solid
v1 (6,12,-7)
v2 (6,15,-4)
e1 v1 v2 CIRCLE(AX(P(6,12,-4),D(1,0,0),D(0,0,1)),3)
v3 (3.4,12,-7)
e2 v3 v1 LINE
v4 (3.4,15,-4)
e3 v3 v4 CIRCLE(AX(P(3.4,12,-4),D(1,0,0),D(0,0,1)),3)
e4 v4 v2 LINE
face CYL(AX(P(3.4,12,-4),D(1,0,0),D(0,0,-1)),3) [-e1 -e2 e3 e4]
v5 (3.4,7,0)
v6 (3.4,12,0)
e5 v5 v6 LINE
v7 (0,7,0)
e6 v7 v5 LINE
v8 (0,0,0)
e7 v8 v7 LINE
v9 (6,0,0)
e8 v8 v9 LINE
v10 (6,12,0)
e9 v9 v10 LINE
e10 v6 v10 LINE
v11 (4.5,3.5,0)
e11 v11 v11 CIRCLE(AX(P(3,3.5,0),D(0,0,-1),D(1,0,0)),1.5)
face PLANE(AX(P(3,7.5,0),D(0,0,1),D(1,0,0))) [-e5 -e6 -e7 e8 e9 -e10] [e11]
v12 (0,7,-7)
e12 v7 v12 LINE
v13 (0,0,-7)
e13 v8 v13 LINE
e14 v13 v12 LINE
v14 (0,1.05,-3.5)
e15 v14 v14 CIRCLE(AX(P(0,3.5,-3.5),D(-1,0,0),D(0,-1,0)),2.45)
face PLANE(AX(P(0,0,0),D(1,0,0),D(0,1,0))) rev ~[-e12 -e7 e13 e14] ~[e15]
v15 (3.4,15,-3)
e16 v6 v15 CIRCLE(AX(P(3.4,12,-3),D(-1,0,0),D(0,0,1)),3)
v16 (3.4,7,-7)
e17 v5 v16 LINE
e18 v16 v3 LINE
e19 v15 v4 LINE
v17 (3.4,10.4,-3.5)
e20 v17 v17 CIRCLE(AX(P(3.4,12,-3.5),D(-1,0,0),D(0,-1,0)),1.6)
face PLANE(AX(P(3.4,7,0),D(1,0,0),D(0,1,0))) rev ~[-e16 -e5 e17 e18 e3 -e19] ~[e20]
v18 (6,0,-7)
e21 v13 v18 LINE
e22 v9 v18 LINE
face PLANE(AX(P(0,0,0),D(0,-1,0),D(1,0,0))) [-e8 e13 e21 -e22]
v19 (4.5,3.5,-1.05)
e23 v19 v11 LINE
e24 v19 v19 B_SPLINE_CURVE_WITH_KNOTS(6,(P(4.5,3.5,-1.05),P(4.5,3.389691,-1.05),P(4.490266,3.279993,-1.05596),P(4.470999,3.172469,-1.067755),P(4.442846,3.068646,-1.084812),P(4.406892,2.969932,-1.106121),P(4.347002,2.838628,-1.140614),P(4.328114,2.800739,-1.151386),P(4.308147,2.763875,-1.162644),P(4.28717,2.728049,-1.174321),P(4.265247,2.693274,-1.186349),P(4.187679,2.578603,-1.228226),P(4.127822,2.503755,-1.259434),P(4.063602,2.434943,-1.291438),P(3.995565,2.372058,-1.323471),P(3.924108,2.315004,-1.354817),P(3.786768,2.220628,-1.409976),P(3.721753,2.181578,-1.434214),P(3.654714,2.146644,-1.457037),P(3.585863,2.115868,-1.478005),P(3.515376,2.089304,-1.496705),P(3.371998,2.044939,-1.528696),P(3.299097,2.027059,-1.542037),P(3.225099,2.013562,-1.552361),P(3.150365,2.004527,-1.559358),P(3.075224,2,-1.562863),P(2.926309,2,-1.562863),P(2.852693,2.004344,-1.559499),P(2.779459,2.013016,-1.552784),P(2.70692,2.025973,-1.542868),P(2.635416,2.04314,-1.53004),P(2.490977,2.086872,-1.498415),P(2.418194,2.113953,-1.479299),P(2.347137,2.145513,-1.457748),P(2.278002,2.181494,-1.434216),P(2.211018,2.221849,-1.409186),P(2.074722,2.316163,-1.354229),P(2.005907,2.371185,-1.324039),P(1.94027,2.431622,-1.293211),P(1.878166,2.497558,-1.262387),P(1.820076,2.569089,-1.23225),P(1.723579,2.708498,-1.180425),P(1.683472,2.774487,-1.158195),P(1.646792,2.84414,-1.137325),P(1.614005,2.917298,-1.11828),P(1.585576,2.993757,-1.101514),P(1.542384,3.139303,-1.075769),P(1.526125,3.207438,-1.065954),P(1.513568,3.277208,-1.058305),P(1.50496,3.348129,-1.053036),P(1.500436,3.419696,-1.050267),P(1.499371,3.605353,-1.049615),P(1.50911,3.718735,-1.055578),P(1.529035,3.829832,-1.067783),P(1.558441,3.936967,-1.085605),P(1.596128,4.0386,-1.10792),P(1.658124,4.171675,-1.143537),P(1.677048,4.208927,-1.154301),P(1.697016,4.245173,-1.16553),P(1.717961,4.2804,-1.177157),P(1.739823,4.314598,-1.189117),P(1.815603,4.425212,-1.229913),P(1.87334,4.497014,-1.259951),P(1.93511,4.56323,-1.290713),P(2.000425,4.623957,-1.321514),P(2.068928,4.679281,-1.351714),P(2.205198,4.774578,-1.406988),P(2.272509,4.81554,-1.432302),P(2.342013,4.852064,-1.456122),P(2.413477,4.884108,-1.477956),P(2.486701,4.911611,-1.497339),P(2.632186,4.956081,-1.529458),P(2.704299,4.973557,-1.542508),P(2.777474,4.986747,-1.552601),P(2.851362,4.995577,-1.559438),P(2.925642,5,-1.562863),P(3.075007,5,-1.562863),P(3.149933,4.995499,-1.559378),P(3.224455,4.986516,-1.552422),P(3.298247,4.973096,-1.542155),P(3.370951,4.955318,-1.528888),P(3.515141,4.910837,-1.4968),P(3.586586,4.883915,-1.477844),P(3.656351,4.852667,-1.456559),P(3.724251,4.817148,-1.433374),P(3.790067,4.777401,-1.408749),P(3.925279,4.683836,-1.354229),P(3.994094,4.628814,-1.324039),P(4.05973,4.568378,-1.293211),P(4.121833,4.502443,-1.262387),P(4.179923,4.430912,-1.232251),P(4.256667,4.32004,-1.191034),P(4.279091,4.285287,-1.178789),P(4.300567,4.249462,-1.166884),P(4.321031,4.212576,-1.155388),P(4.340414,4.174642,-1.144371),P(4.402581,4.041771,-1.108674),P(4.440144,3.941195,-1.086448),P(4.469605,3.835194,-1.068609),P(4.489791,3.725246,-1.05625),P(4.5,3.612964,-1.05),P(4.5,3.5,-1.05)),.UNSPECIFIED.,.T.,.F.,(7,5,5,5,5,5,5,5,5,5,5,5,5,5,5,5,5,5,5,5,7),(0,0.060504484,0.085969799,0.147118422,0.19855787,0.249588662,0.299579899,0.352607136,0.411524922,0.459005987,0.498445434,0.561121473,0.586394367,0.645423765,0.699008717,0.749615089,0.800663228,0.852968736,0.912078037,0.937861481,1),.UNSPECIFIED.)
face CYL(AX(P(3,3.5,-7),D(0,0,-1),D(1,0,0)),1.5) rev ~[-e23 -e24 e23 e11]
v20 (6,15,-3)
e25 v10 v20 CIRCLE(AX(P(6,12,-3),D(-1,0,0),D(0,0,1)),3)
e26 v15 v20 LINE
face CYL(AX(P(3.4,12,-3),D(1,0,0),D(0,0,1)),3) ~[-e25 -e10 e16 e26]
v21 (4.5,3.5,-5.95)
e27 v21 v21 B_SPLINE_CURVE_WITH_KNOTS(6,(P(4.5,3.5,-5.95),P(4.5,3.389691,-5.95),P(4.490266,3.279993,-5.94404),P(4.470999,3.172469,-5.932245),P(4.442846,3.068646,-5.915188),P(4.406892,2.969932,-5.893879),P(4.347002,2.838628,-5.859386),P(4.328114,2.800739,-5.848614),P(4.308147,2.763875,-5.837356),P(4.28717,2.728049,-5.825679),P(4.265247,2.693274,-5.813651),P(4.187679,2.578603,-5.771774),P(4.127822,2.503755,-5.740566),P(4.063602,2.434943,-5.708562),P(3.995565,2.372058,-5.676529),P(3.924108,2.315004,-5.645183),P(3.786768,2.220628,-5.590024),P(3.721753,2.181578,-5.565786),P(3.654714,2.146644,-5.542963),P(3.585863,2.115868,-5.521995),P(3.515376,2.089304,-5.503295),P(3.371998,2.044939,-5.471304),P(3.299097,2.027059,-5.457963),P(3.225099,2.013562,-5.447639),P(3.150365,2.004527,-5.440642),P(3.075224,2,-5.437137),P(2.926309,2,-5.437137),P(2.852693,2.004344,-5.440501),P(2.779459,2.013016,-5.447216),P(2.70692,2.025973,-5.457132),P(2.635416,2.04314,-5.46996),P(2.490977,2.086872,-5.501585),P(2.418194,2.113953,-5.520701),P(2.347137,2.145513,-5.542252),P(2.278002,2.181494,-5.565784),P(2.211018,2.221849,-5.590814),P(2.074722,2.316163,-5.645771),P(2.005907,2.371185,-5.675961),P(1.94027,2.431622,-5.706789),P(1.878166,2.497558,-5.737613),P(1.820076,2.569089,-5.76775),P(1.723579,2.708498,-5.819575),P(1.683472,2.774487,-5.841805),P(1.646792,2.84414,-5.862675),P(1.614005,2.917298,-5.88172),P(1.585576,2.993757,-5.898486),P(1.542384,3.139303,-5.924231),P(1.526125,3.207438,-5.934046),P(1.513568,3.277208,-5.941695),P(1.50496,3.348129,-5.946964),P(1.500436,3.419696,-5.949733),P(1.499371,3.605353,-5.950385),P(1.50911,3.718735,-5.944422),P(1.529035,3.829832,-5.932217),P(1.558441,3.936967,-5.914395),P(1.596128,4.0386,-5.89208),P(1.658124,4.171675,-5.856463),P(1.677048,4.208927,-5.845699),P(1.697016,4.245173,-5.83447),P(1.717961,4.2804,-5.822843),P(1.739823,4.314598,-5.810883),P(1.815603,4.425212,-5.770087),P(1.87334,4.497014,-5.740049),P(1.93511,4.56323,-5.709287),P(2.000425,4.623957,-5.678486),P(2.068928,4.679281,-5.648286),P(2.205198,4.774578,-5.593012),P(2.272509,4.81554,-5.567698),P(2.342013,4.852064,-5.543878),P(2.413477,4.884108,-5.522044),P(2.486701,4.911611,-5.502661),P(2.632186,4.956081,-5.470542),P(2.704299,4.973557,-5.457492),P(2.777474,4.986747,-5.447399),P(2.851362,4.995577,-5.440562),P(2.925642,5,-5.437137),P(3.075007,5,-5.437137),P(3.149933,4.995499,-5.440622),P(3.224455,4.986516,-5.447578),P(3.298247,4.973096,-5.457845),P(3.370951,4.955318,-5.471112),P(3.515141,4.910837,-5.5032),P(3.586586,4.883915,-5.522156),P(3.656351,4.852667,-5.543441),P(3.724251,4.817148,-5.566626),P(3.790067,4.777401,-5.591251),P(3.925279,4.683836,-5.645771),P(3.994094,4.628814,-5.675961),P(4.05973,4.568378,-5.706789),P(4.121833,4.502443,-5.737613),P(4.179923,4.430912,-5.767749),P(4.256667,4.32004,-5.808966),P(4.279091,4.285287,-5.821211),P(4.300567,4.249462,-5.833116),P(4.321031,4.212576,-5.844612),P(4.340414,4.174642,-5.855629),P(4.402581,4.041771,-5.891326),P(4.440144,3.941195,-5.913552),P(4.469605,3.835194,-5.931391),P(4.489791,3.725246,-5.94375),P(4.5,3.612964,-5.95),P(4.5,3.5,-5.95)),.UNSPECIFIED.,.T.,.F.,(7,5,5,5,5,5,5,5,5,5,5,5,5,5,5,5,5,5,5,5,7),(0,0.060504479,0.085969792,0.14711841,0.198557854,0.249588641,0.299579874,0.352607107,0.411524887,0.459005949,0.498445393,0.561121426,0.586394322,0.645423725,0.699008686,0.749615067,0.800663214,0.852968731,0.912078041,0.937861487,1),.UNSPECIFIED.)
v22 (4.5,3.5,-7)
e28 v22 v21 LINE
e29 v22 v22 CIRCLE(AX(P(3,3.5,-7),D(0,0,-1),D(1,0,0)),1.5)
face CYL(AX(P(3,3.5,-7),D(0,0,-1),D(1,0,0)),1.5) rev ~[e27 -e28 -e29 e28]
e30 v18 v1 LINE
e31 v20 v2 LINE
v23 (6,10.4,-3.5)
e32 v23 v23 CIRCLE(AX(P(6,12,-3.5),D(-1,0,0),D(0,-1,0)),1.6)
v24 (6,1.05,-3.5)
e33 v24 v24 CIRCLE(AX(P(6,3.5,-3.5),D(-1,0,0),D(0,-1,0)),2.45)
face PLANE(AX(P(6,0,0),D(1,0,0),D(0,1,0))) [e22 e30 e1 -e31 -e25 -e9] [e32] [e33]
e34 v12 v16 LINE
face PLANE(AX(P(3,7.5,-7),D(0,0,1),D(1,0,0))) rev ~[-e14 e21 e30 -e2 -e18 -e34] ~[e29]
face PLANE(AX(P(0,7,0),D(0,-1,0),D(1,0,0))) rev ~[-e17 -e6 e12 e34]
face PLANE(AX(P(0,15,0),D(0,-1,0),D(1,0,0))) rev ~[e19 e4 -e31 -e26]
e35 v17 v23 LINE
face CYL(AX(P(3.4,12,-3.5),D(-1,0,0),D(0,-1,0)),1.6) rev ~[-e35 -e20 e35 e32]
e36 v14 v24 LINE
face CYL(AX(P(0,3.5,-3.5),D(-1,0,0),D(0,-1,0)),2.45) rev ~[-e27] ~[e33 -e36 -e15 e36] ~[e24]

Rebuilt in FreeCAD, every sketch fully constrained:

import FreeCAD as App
import Part
import Sketcher

V = App.Vector


def edges_at(feature, points):
    """Names of the edges that pass closest to the given points."""
    edges = feature.Shape.Edges
    near = lambda p: min(range(len(edges)), key=lambda i: edges[i].distToShape(Part.Vertex(*p))[0])
    return sorted({f"Edge{near(p) + 1}" for p in points})


def add_polygon(sketch, points):
    """Adds a closed chain of lines whose ends are joined by coincident constraints."""
    first, n = sketch.GeometryCount, len(points)
    for a, b in zip(points, points[1:] + points[:1]):
        sketch.addGeometry(Part.LineSegment(App.Vector(*a, 0), App.Vector(*b, 0)), False)
    for i in range(n):
        sketch.addConstraint(Sketcher.Constraint("Coincident", first + i, 2, first + (i + 1) % n, 1))

doc = App.newDocument("Part")
body = doc.addObject("PartDesign::Body", "Body")

# Sketch on XY plane
sketch1 = body.newObject("Sketcher::SketchObject", "Sketch")
sketch1.AttachmentSupport = (doc.getObject("XY_Plane"), [""])
sketch1.MapMode = "FlatFace"
add_polygon(sketch1, [(0, 15), (0, 0), (6, 0), (6, 15)])  # lines 0-3
sketch1.addConstraint([
    Sketcher.Constraint("Vertical", 0),
    Sketcher.Constraint("Horizontal", 1),
    Sketcher.Constraint("Vertical", 2),
    Sketcher.Constraint("Horizontal", 3),
    Sketcher.Constraint("Coincident", 0, 2, -1, 1),
    Sketcher.Constraint("DistanceX", 1, 1, 1, 2, 6.0),
    Sketcher.Constraint("DistanceY", 0, 2, 0, 1, 15.0),
])
pad1 = body.newObject("PartDesign::Pad", "Pad")
pad1.Profile = sketch1
pad1.Length = 7
pad1.Reversed = True

# Sketch on XY plane
sketch2 = body.newObject("Sketcher::SketchObject", "Sketch001")
sketch2.AttachmentSupport = (doc.getObject("XY_Plane"), [""])
sketch2.MapMode = "FlatFace"
add_polygon(sketch2, [(0, 15), (0, 7), (3.4, 7), (3.4, 15)])  # lines 0-3
sketch2.addConstraint([
    Sketcher.Constraint("Vertical", 0),
    Sketcher.Constraint("Horizontal", 1),
    Sketcher.Constraint("Vertical", 2),
    Sketcher.Constraint("Horizontal", 3),
    Sketcher.Constraint("PointOnObject", 0, 2, -2),
    Sketcher.Constraint("DistanceY", 0, 2, 0, 1, 8.0),
    Sketcher.Constraint("DistanceX", 1, 1, 1, 2, 3.4),
    Sketcher.Constraint("DistanceY", -1, 1, 0, 2, 7.0),
])
pocket1 = body.newObject("PartDesign::Pocket", "Pocket")
pocket1.Profile = sketch2
pocket1.Length = 25
doc.recompute()

fillet = body.newObject("PartDesign::Fillet", "Fillet")
fillet.Base = (pocket1, edges_at(pocket1, [(4.7, 15, 0), (4.7, 15, -7)]))
fillet.Radius = 3

# Sketch on YZ plane
sketch3 = body.newObject("Sketcher::SketchObject", "Sketch002")
sketch3.AttachmentSupport = (doc.getObject("YZ_Plane"), [""])
sketch3.MapMode = "FlatFace"
sketch3.addGeometry(Part.Circle(V(3.5, -3.5, 0), V(0, 0, 1), 2.5), False)
sketch3.addConstraint([
    Sketcher.Constraint("Diameter", 0, 4.9),
    Sketcher.Constraint("DistanceX", -1, 1, 0, 3, 3.5),
    Sketcher.Constraint("DistanceY", 0, 3, -1, 1, 3.5),
])
pocket2 = body.newObject("PartDesign::Pocket", "Pocket001")
pocket2.Profile = sketch3
pocket2.Length = 25
pocket2.Reversed = True

# Sketch on YZ plane
sketch4 = body.newObject("Sketcher::SketchObject", "Sketch003")
sketch4.AttachmentSupport = (doc.getObject("YZ_Plane"), [""])
sketch4.MapMode = "FlatFace"
sketch4.AttachmentOffset = App.Placement(V(0, 0, 3.4), App.Rotation())
sketch4.addGeometry(Part.Circle(V(12, -3.5, 0), V(0, 0, 1), 1.6), False)
sketch4.addConstraint([
    Sketcher.Constraint("Diameter", 0, 3.2),
    Sketcher.Constraint("DistanceX", -1, 1, 0, 3, 12.0),
    Sketcher.Constraint("DistanceY", 0, 3, -1, 1, 3.5),
])
pocket3 = body.newObject("PartDesign::Pocket", "Pocket002")
pocket3.Profile = sketch4
pocket3.Length = 25
pocket3.Reversed = True

# Sketch on XY plane
sketch5 = body.newObject("Sketcher::SketchObject", "Sketch004")
sketch5.AttachmentSupport = (doc.getObject("XY_Plane"), [""])
sketch5.MapMode = "FlatFace"
sketch5.AttachmentOffset = App.Placement(V(0, 0, -7), App.Rotation())
sketch5.addGeometry(Part.Circle(V(3, 3.5, 0), V(0, 0, 1), 1.5), False)
sketch5.addConstraint([
    Sketcher.Constraint("Diameter", 0, 3.0),
    Sketcher.Constraint("DistanceX", -1, 1, 0, 3, 3.0),
    Sketcher.Constraint("DistanceY", -1, 1, 0, 3, 3.5),
])
pocket4 = body.newObject("PartDesign::Pocket", "Pocket003")
pocket4.Profile = sketch5
pocket4.Length = 25
pocket4.Reversed = True

doc.recompute()
